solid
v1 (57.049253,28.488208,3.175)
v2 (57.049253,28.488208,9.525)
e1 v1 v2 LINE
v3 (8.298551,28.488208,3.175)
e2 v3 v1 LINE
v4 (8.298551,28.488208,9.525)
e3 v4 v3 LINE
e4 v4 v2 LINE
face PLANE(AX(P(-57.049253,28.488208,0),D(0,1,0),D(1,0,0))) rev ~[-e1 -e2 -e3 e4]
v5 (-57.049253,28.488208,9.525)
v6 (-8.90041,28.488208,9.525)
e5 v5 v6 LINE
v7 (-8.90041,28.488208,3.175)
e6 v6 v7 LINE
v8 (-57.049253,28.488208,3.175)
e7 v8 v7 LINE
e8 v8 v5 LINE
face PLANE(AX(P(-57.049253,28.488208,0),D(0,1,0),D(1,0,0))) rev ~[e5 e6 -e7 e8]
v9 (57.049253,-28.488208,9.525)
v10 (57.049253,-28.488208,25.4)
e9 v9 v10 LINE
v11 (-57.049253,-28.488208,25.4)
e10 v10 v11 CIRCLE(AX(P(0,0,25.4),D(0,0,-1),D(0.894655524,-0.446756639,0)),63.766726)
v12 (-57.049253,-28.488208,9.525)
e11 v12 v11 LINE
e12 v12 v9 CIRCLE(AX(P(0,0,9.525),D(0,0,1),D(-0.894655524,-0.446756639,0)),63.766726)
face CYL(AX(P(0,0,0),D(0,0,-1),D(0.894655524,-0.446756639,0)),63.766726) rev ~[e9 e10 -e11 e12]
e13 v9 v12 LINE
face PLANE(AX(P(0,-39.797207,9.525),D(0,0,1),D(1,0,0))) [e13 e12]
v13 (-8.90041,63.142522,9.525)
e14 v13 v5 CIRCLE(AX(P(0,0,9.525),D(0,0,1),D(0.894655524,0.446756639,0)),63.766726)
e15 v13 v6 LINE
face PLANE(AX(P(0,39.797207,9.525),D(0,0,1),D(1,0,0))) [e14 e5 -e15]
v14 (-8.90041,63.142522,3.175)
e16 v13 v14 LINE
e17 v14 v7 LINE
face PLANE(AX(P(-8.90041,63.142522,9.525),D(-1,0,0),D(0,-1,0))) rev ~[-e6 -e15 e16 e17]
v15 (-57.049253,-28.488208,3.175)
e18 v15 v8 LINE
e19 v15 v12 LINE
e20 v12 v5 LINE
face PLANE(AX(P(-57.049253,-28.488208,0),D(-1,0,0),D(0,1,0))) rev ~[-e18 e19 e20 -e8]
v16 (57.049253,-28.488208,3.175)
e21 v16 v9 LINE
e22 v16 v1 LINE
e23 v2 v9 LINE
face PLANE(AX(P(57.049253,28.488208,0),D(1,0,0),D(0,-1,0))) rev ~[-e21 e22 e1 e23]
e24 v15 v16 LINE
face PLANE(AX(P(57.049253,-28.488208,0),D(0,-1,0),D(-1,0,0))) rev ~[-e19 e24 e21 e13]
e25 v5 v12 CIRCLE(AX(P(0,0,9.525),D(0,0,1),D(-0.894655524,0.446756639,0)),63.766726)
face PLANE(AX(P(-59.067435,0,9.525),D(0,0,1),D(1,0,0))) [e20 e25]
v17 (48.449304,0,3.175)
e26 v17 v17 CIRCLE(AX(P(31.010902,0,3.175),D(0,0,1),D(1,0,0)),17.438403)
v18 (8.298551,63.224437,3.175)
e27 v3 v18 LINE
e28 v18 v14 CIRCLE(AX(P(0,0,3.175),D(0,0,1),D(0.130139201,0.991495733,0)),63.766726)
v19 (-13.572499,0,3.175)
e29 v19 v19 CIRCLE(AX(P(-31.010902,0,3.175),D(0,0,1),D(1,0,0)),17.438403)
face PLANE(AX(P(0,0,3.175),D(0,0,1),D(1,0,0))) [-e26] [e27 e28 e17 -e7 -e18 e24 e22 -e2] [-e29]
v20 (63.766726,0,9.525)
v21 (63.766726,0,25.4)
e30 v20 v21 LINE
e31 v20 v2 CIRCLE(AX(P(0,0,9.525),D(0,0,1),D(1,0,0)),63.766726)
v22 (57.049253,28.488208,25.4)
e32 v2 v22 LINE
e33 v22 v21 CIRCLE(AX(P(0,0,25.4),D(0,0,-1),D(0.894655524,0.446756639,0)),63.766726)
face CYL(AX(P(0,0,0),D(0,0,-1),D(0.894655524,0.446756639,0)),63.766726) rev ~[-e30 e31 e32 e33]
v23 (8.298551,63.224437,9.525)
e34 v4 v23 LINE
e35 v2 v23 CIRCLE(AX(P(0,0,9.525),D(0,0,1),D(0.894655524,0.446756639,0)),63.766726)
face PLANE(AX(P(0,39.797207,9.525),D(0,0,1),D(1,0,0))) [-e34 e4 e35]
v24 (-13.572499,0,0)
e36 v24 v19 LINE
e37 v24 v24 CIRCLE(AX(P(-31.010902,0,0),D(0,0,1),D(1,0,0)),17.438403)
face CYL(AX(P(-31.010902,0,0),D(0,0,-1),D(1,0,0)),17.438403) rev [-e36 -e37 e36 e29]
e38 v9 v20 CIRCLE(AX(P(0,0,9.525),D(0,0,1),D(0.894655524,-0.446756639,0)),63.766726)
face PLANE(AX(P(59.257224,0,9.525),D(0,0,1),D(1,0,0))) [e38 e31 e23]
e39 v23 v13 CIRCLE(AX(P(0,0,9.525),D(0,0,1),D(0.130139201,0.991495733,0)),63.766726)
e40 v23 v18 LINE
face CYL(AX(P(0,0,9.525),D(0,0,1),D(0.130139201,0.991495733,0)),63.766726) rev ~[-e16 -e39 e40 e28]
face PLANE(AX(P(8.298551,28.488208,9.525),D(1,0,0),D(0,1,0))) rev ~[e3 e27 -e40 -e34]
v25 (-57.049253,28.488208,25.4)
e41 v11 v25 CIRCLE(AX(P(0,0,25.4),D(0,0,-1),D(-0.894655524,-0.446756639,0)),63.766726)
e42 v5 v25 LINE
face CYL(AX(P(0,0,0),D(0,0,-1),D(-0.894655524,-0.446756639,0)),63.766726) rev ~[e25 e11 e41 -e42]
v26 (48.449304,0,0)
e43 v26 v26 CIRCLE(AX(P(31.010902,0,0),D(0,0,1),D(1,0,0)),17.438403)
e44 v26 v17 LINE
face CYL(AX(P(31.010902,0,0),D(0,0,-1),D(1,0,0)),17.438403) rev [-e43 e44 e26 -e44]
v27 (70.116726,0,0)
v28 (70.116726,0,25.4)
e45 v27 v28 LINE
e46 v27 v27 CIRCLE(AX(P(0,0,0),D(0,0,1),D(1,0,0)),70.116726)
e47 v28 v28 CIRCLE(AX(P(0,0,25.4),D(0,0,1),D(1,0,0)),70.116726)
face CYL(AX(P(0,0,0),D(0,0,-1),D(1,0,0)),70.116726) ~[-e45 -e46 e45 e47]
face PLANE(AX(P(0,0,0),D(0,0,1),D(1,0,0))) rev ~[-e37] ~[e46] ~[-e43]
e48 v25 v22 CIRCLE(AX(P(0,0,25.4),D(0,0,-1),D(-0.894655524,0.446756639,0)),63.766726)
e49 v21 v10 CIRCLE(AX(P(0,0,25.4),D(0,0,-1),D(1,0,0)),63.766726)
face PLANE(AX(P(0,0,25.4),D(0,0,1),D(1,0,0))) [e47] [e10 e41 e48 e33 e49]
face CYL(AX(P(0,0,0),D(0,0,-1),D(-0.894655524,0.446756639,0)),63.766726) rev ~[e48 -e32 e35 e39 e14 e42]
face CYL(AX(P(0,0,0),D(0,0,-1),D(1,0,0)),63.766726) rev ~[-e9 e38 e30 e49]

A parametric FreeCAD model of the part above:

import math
import FreeCAD as App
import Part
import Sketcher
from FreeCAD import Vector
Q = App.Units.Quantity


def add_polygon(sketch, points):
    """Adds a closed chain of lines whose ends are joined by coincident constraints."""
    first, n = sketch.GeometryCount, len(points)
    for a, b in zip(points, points[1:] + points[:1]):
        sketch.addGeometry(Part.LineSegment(App.Vector(*a, 0), App.Vector(*b, 0)), False)
    for i in range(n):
        sketch.addConstraint(Sketcher.Constraint("Coincident", first + i, 2, first + (i + 1) % n, 1))

doc = App.newDocument("Part")
body = doc.addObject("PartDesign::Body", "Body")

sketch1 = body.newObject("Sketcher::SketchObject", "Sketch")
sketch1.AttachmentSupport = (doc.getObject("XY_Plane"), [""])
sketch1.MapMode = "FlatFace"
sketch1.addGeometry([
    Part.Circle(Vector(0, 0, 0), Vector(0, 0, 1), 70),
    Part.ArcOfCircle(Part.Circle(Vector(0, 0, 0), Vector(0, 0, 1), 64), math.radians(27), math.radians(153)),
    Part.ArcOfCircle(Part.Circle(Vector(0, 0, 0), Vector(0, 0, 1), 64), math.radians(0), math.radians(27)),
    Part.ArcOfCircle(Part.Circle(Vector(0, 0, 0), Vector(0, 0, 1), 64), math.radians(-27), math.radians(0)),
    Part.ArcOfCircle(Part.Circle(Vector(0, 0, 0), Vector(0, 0, 1), 64), math.radians(-153), math.radians(-27)),
    Part.ArcOfCircle(Part.Circle(Vector(0, 0, 0), Vector(0, 0, 1), 64), math.radians(153), math.radians(207)),
], False)
sketch1.addConstraint([
    Sketcher.Constraint("Tangent", 1, 1, 2, 2),
    Sketcher.Constraint("Tangent", 2, 1, 3, 2),
    Sketcher.Constraint("Tangent", 3, 1, 4, 2),
    Sketcher.Constraint("Tangent", 4, 1, 5, 2),
    Sketcher.Constraint("Tangent", 5, 1, 1, 2),
    Sketcher.Constraint("Coincident", 0, 3, -1, 1),
    Sketcher.Constraint("Coincident", 1, 3, -1, 1),
    Sketcher.Constraint("Coincident", 3, 3, -1, 1),
    Sketcher.Constraint("PointOnObject", 2, 1, -1),
    Sketcher.Constraint("Horizontal", 3, 1, 4, 1),
    Sketcher.Constraint("Horizontal", 1, 1, 5, 1),
    Sketcher.Constraint("Vertical", 1, 1, 3, 1),
    Sketcher.Constraint("Diameter", 0, Q("140.233452 mm")),
    Sketcher.Constraint("Radius", 1, Q("63.766726 mm")),
    Sketcher.Constraint("DistanceY", -1, 1, 1, 1, Q("28.488208 mm")),
])
pad1 = body.newObject("PartDesign::Pad", "Pad")
pad1.Profile = sketch1
pad1.Length = Q("1 in")

sketch2 = body.newObject("Sketcher::SketchObject", "Sketch001")
sketch2.AttachmentSupport = (doc.getObject("XY_Plane"), [""])
sketch2.MapMode = "FlatFace"
sketch2.addGeometry([
    Part.LineSegment(Vector(-57, 28, 0), Vector(57, 28, 0)),
    Part.ArcOfCircle(Part.Circle(Vector(0, 0, 0), Vector(0, 0, 1), 64), math.radians(27), math.radians(153)),
    Part.LineSegment(Vector(-57, -28, 0), Vector(-57, 28, 0)),
    Part.ArcOfCircle(Part.Circle(Vector(0, 0, 0), Vector(0, 0, 1), 64), math.radians(153), math.radians(207)),
    Part.ArcOfCircle(Part.Circle(Vector(0, 0, 0), Vector(0, 0, 1), 64), math.radians(-153), math.radians(-27)),
    Part.LineSegment(Vector(57, -28, 0), Vector(-57, -28, 0)),
    Part.ArcOfCircle(Part.Circle(Vector(0, 0, 0), Vector(0, 0, 1), 64), math.radians(-27), math.radians(0)),
    Part.ArcOfCircle(Part.Circle(Vector(0, 0, 0), Vector(0, 0, 1), 64), math.radians(0), math.radians(27)),
    Part.LineSegment(Vector(57, 28, 0), Vector(57, -28, 0)),
], False)
sketch2.addConstraint([
    Sketcher.Constraint("Coincident", 0, 1, 1, 2),
    Sketcher.Constraint("Coincident", 1, 1, 0, 2),
    Sketcher.Constraint("Coincident", 2, 1, 3, 2),
    Sketcher.Constraint("Coincident", 3, 1, 2, 2),
    Sketcher.Constraint("Coincident", 4, 1, 5, 2),
    Sketcher.Constraint("Coincident", 5, 1, 4, 2),
    Sketcher.Constraint("Tangent", 6, 2, 7, 1),
    Sketcher.Constraint("Coincident", 7, 2, 8, 1),
    Sketcher.Constraint("Coincident", 8, 2, 6, 1),
    Sketcher.Constraint("Horizontal", 0),
    Sketcher.Constraint("Vertical", 2),
    Sketcher.Constraint("Horizontal", 5),
    Sketcher.Constraint("Vertical", 8),
    Sketcher.Constraint("Coincident", 1, 3, -1, 1),
    Sketcher.Constraint("Coincident", 3, 3, -1, 1),
    Sketcher.Constraint("Coincident", 4, 3, -1, 1),
    Sketcher.Constraint("Coincident", 6, 3, -1, 1),
    Sketcher.Constraint("Coincident", 3, 1, 0, 1),
    Sketcher.Constraint("Coincident", 4, 1, 2, 1),
    Sketcher.Constraint("Coincident", 7, 2, 1, 1),
    Sketcher.Constraint("Equal", 4, 6),
    Sketcher.Constraint("PointOnObject", 6, 2, -1),
    Sketcher.Constraint("Radius", 1, Q("63.766726 mm")),
    Sketcher.Constraint("DistanceX", 0, 1, 0, 2, Q("114.098507 mm")),
])
pad2 = body.newObject("PartDesign::Pad", "Pad001")
pad2.Profile = sketch2
pad2.Length = Q("0.375 in")

sketch3 = body.newObject("Sketcher::SketchObject", "Sketch002")
sketch3.AttachmentSupport = (doc.getObject("XY_Plane"), [""])
sketch3.MapMode = "FlatFace"
add_polygon(sketch3, [(-57, 28), (-57, -28), (57, -28), (57, 28)])
sketch3.addGeometry(Part.Circle(Vector(-31, 0, 0), Vector(0, 0, 1), 17), False)
sketch3.addGeometry(Part.Circle(Vector(31, 0, 0), Vector(0, 0, 1), 17), False)
sketch3.addConstraint([
    Sketcher.Constraint("Vertical", 0),
    Sketcher.Constraint("Horizontal", 1),
    Sketcher.Constraint("Vertical", 2),
    Sketcher.Constraint("Horizontal", 3),
    Sketcher.Constraint("Equal", 4, 5),
    Sketcher.Constraint("Symmetric", 4, 3, 5, 3, -1, 1),
    Sketcher.Constraint("Symmetric", 0, 2, 2, 2, -1, 1),
    Sketcher.Constraint("PointOnObject", 4, 3, -1),
    Sketcher.Constraint("Diameter", 4, Q("34.876805 mm")),
    Sketcher.Constraint("DistanceX", 4, 3, -1, 1, Q("31.010902 mm")),
    Sketcher.Constraint("DistanceX", 1, 1, 1, 2, Q("114.098507 mm")),
    Sketcher.Constraint("DistanceY", 0, 2, 0, 1, Q("56.976416 mm")),
])
pad3 = body.newObject("PartDesign::Pad", "Pad002")
pad3.Profile = sketch3
pad3.Length = Q("0.125 in")

sketch4 = body.newObject("Sketcher::SketchObject", "Sketch003")
sketch4.AttachmentSupport = (doc.getObject("XY_Plane"), [""])
sketch4.MapMode = "FlatFace"
sketch4.AttachmentOffset = App.Placement(Vector(0, 0, 0.375 * 25.4), App.Rotation())
sketch4.addGeometry([
    Part.LineSegment(Vector(-9, 63, 0), Vector(-9, 28, 0)),
    Part.LineSegment(Vector(-9, 28, 0), Vector(8, 28, 0)),
    Part.LineSegment(Vector(8, 28, 0), Vector(8, 63, 0)),
    Part.ArcOfCircle(Part.Circle(Vector(0, 0, 0), Vector(0, 0, 1), 64), math.radians(82.52), math.radians(98.02)),
], False)
sketch4.addConstraint([
    Sketcher.Constraint("Coincident", 0, 2, 1, 1),
    Sketcher.Constraint("Coincident", 1, 2, 2, 1),
    Sketcher.Constraint("Coincident", 2, 2, 3, 1),
    Sketcher.Constraint("Coincident", 3, 2, 0, 1),
    Sketcher.Constraint("Vertical", 0),
    Sketcher.Constraint("Horizontal", 1),
    Sketcher.Constraint("Vertical", 2),
    Sketcher.Constraint("Coincident", 3, 3, -1, 1),
    Sketcher.Constraint("Radius", 3, Q("63.766726 mm")),
    Sketcher.Constraint("DistanceX", 1, 1, 1, 2, Q("17.19896 mm")),
    Sketcher.Constraint("DistanceY", 2, 1, 2, 2, Q("34.736228 mm")),
    Sketcher.Constraint("DistanceY", 0, 2, 0, 1, Q("34.654313 mm")),
])
pocket1 = body.newObject("PartDesign::Pocket", "Pocket")
pocket1.Profile = sketch4
pocket1.Length = Q("0.25 in")

doc.recompute()
